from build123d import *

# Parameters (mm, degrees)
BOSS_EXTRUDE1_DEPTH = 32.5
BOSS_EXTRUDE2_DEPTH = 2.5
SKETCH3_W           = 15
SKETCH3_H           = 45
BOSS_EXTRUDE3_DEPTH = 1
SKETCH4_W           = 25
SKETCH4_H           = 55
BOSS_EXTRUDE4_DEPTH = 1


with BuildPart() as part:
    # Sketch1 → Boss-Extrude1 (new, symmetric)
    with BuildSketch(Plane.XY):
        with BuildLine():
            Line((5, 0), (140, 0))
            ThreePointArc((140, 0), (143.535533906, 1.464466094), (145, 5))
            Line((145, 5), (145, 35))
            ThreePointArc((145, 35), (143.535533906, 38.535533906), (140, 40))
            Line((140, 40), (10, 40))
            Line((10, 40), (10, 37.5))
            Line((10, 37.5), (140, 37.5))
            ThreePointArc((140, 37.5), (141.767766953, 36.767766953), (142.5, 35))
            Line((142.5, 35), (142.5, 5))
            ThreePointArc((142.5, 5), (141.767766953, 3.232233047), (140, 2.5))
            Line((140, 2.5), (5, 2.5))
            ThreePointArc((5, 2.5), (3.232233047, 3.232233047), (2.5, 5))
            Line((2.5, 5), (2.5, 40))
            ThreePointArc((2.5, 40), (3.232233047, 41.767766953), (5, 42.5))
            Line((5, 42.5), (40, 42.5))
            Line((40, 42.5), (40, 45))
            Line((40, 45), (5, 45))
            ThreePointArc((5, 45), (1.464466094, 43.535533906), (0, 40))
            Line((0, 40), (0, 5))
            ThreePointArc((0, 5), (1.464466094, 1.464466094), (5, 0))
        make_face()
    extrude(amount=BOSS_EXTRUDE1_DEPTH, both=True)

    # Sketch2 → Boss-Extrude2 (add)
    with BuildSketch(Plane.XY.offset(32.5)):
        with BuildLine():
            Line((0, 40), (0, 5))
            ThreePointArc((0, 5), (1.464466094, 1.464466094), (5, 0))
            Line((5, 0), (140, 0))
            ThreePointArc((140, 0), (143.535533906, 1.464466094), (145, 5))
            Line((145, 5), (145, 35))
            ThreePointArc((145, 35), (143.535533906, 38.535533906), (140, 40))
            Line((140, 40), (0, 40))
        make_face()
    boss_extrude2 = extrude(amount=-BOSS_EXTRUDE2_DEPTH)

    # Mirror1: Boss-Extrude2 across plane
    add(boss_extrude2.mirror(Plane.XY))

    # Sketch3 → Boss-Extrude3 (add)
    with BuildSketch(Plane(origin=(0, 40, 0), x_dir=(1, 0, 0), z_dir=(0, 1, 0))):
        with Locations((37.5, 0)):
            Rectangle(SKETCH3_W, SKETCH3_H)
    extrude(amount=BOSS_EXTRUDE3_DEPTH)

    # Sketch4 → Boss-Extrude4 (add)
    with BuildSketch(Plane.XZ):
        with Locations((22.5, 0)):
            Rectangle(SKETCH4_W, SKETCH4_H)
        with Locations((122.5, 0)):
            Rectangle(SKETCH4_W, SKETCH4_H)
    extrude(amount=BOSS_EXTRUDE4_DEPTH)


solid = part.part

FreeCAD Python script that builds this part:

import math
import FreeCAD as App
import Part
import Sketcher
Q = App.Units.Quantity


def add_polygon(sketch, points):
    """Adds a closed chain of lines whose ends are joined by coincident constraints."""
    first, n = sketch.GeometryCount, len(points)
    for a, b in zip(points, points[1:] + points[:1]):
        sketch.addGeometry(Part.LineSegment(App.Vector(*a, 0), App.Vector(*b, 0)), False)
    for i in range(n):
        sketch.addConstraint(Sketcher.Constraint("Coincident", first + i, 2, first + (i + 1) % n, 1))

doc = App.newDocument("Part")
body = doc.addObject("PartDesign::Body", "Body")

sketch1 = body.newObject("Sketcher::SketchObject", "Sketch")
sketch1.AttachmentSupport = (doc.getObject("XY_Plane"), [""])
sketch1.MapMode = "FlatFace"
sketch1.addGeometry(Part.LineSegment(App.Vector(5, 0, 0), App.Vector(140, 0, 0)), False)
sketch1.addGeometry(Part.ArcOfCircle(Part.Circle(App.Vector(140, 5, 0), App.Vector(0, 0, 1), 5), math.radians(-90), math.radians(0)), False)
sketch1.addGeometry(Part.LineSegment(App.Vector(145, 5, 0), App.Vector(145, 35, 0)), False)
sketch1.addGeometry(Part.ArcOfCircle(Part.Circle(App.Vector(140, 35, 0), App.Vector(0, 0, 1), 5), math.radians(0), math.radians(90)), False)
sketch1.addGeometry(Part.LineSegment(App.Vector(140, 40, 0), App.Vector(10, 40, 0)), False)
sketch1.addGeometry(Part.LineSegment(App.Vector(10, 40, 0), App.Vector(10, 37.5, 0)), False)
sketch1.addGeometry(Part.LineSegment(App.Vector(10, 37.5, 0), App.Vector(140, 37.5, 0)), False)
sketch1.addGeometry(Part.ArcOfCircle(Part.Circle(App.Vector(140, 35, 0), App.Vector(0, 0, 1), 2.5), math.radians(0), math.radians(90)), False)
sketch1.addGeometry(Part.LineSegment(App.Vector(142.5, 35, 0), App.Vector(142.5, 5, 0)), False)
sketch1.addGeometry(Part.ArcOfCircle(Part.Circle(App.Vector(140, 5, 0), App.Vector(0, 0, 1), 2.5), math.radians(-90), math.radians(0)), False)
sketch1.addGeometry(Part.LineSegment(App.Vector(140, 2.5, 0), App.Vector(5, 2.5, 0)), False)
sketch1.addGeometry(Part.ArcOfCircle(Part.Circle(App.Vector(5, 5, 0), App.Vector(0, 0, 1), 2.5), math.radians(180), math.radians(270)), False)
sketch1.addGeometry(Part.LineSegment(App.Vector(2.5, 5, 0), App.Vector(2.5, 40, 0)), False)
sketch1.addGeometry(Part.ArcOfCircle(Part.Circle(App.Vector(5, 40, 0), App.Vector(0, 0, 1), 2.5), math.radians(90), math.radians(180)), False)
sketch1.addGeometry(Part.LineSegment(App.Vector(5, 42.5, 0), App.Vector(40, 42.5, 0)), False)
sketch1.addGeometry(Part.LineSegment(App.Vector(40, 42.5, 0), App.Vector(40, 45, 0)), False)
sketch1.addGeometry(Part.LineSegment(App.Vector(40, 45, 0), App.Vector(5, 45, 0)), False)
sketch1.addGeometry(Part.ArcOfCircle(Part.Circle(App.Vector(5, 40, 0), App.Vector(0, 0, 1), 5), math.radians(90), math.radians(180)), False)
sketch1.addGeometry(Part.LineSegment(App.Vector(0, 40, 0), App.Vector(0, 5, 0)), False)
sketch1.addGeometry(Part.ArcOfCircle(Part.Circle(App.Vector(5, 5, 0), App.Vector(0, 0, 1), 5), math.radians(180), math.radians(270)), False)
sketch1.addConstraint(Sketcher.Constraint("Tangent", 0, 2, 1, 1))
sketch1.addConstraint(Sketcher.Constraint("Tangent", 1, 2, 2, 1))
sketch1.addConstraint(Sketcher.Constraint("Tangent", 2, 2, 3, 1))
sketch1.addConstraint(Sketcher.Constraint("Tangent", 3, 2, 4, 1))
sketch1.addConstraint(Sketcher.Constraint("Coincident", 4, 2, 5, 1))
sketch1.addConstraint(Sketcher.Constraint("Coincident", 5, 2, 6, 1))
sketch1.addConstraint(Sketcher.Constraint("Tangent", 6, 2, 7, 2))
sketch1.addConstraint(Sketcher.Constraint("Tangent", 7, 1, 8, 1))
sketch1.addConstraint(Sketcher.Constraint("Tangent", 8, 2, 9, 2))
sketch1.addConstraint(Sketcher.Constraint("Tangent", 9, 1, 10, 1))
sketch1.addConstraint(Sketcher.Constraint("Tangent", 10, 2, 11, 2))
sketch1.addConstraint(Sketcher.Constraint("Tangent", 11, 1, 12, 1))
sketch1.addConstraint(Sketcher.Constraint("Tangent", 12, 2, 13, 2))
sketch1.addConstraint(Sketcher.Constraint("Tangent", 13, 1, 14, 1))
sketch1.addConstraint(Sketcher.Constraint("Coincident", 14, 2, 15, 1))
sketch1.addConstraint(Sketcher.Constraint("Coincident", 15, 2, 16, 1))
sketch1.addConstraint(Sketcher.Constraint("Tangent", 16, 2, 17, 1))
sketch1.addConstraint(Sketcher.Constraint("Tangent", 17, 2, 18, 1))
sketch1.addConstraint(Sketcher.Constraint("Tangent", 18, 2, 19, 1))
sketch1.addConstraint(Sketcher.Constraint("Tangent", 19, 2, 0, 1))
sketch1.addConstraint(Sketcher.Constraint("Horizontal", 0))
sketch1.addConstraint(Sketcher.Constraint("Vertical", 2))
sketch1.addConstraint(Sketcher.Constraint("Horizontal", 4))
sketch1.addConstraint(Sketcher.Constraint("Vertical", 5))
sketch1.addConstraint(Sketcher.Constraint("Horizontal", 6))
sketch1.addConstraint(Sketcher.Constraint("Vertical", 8))
sketch1.addConstraint(Sketcher.Constraint("Horizontal", 10))
sketch1.addConstraint(Sketcher.Constraint("Vertical", 12))
sketch1.addConstraint(Sketcher.Constraint("Horizontal", 14))
sketch1.addConstraint(Sketcher.Constraint("Vertical", 15))
sketch1.addConstraint(Sketcher.Constraint("Horizontal", 16))
sketch1.addConstraint(Sketcher.Constraint("Vertical", 18))
sketch1.addConstraint(Sketcher.Constraint("Coincident", 7, 3, 3, 3))
sketch1.addConstraint(Sketcher.Constraint("Coincident", 9, 3, 1, 3))
sketch1.addConstraint(Sketcher.Constraint("Coincident", 17, 3, 13, 3))
sketch1.addConstraint(Sketcher.Constraint("Coincident", 19, 3, 11, 3))
sketch1.addConstraint(Sketcher.Constraint("Equal", 1, 3))
sketch1.addConstraint(Sketcher.Constraint("Equal", 9, 11))
sketch1.addConstraint(Sketcher.Constraint("Equal", 11, 13))
sketch1.addConstraint(Sketcher.Constraint("PointOnObject", 0, 2, -1))
sketch1.addConstraint(Sketcher.Constraint("PointOnObject", 17, 2, -2))
sketch1.addConstraint(Sketcher.Constraint("Horizontal", 17, 3, 3, 2))
sketch1.addConstraint(Sketcher.Constraint("Equal", 16, 12))
sketch1.addConstraint(Sketcher.Constraint("Radius", 1, Q("5 mm")))
sketch1.addConstraint(Sketcher.Constraint("Radius", 7, Q("2.5 mm")))
sketch1.addConstraint(Sketcher.Constraint("DistanceX", 0, 1, 0, 2, Q("135 mm")))
sketch1.addConstraint(Sketcher.Constraint("DistanceX", 4, 2, 4, 1, Q("130 mm")))
sketch1.addConstraint(Sketcher.Constraint("DistanceX", 14, 1, 14, 2, Q("35 mm")))
pad1 = body.newObject("PartDesign::Pad", "Pad")
pad1.Profile = sketch1
pad1.Length = 65
pad1.Midplane = True

sketch2 = body.newObject("Sketcher::SketchObject", "Sketch001")
sketch2.AttachmentSupport = (doc.getObject("XY_Plane"), [""])
sketch2.MapMode = "FlatFace"
sketch2.AttachmentOffset = App.Placement(App.Vector(0, 0, 32.5), App.Rotation())
sketch2.addGeometry(Part.LineSegment(App.Vector(0, 40, 0), App.Vector(0, 5, 0)), False)
sketch2.addGeometry(Part.ArcOfCircle(Part.Circle(App.Vector(5, 5, 0), App.Vector(0, 0, 1), 5), math.radians(180), math.radians(270)), False)
sketch2.addGeometry(Part.LineSegment(App.Vector(5, 0, 0), App.Vector(140, 0, 0)), False)
sketch2.addGeometry(Part.ArcOfCircle(Part.Circle(App.Vector(140, 5, 0), App.Vector(0, 0, 1), 5), math.radians(-90), math.radians(0)), False)
sketch2.addGeometry(Part.LineSegment(App.Vector(145, 5, 0), App.Vector(145, 35, 0)), False)
sketch2.addGeometry(Part.ArcOfCircle(Part.Circle(App.Vector(140, 35, 0), App.Vector(0, 0, 1), 5), math.radians(0), math.radians(90)), False)
sketch2.addGeometry(Part.LineSegment(App.Vector(140, 40, 0), App.Vector(0, 40, 0)), False)
sketch2.addConstraint(Sketcher.Constraint("Tangent", 0, 2, 1, 1))
sketch2.addConstraint(Sketcher.Constraint("Tangent", 1, 2, 2, 1))
sketch2.addConstraint(Sketcher.Constraint("Tangent", 2, 2, 3, 1))
sketch2.addConstraint(Sketcher.Constraint("Tangent", 3, 2, 4, 1))
sketch2.addConstraint(Sketcher.Constraint("Tangent", 4, 2, 5, 1))
sketch2.addConstraint(Sketcher.Constraint("Tangent", 5, 2, 6, 1))
sketch2.addConstraint(Sketcher.Constraint("Coincident", 6, 2, 0, 1))
sketch2.addConstraint(Sketcher.Constraint("Vertical", 0))
sketch2.addConstraint(Sketcher.Constraint("Horizontal", 2))
sketch2.addConstraint(Sketcher.Constraint("Vertical", 4))
sketch2.addConstraint(Sketcher.Constraint("Horizontal", 6))
sketch2.addConstraint(Sketcher.Constraint("Equal", 1, 3))
sketch2.addConstraint(Sketcher.Constraint("Equal", 3, 5))
sketch2.addConstraint(Sketcher.Constraint("PointOnObject", 0, 2, -2))
sketch2.addConstraint(Sketcher.Constraint("PointOnObject", 1, 2, -1))
sketch2.addConstraint(Sketcher.Constraint("Radius", 1, Q("5 mm")))
sketch2.addConstraint(Sketcher.Constraint("DistanceX", 2, 1, 2, 2, Q("135 mm")))
sketch2.addConstraint(Sketcher.Constraint("DistanceY", 0, 2, 0, 1, Q("35 mm")))
pad2 = body.newObject("PartDesign::Pad", "Pad001")
pad2.Profile = sketch2
pad2.Length = 2.5
pad2.Reversed = True
doc.recompute()

mirrored = body.newObject("PartDesign::Mirrored", "Mirrored")
mirrored.Originals = [pad2]
mirrored.MirrorPlane = (doc.getObject("XY_Plane"), [""])
body.Tip = mirrored

sketch3 = body.newObject("Sketcher::SketchObject", "Sketch002")
sketch3.AttachmentSupport = (doc.getObject("XZ_Plane"), [""])
sketch3.MapMode = "FlatFace"
sketch3.AttachmentOffset = App.Placement(App.Vector(0, 0, -40), App.Rotation())
add_polygon(sketch3, [(30, -22), (30, 22), (45, 22), (45, -22)])
sketch3.addConstraint(Sketcher.Constraint("Vertical", 0))
sketch3.addConstraint(Sketcher.Constraint("Horizontal", 1))
sketch3.addConstraint(Sketcher.Constraint("Vertical", 2))
sketch3.addConstraint(Sketcher.Constraint("Horizontal", 3))
sketch3.addConstraint(Sketcher.Constraint("DistanceX", 1, 1, 1, 2, Q("15 mm")))
sketch3.addConstraint(Sketcher.Constraint("DistanceY", 0, 1, 0, 2, Q("45 mm")))
sketch3.addConstraint(Sketcher.Constraint("DistanceX", -1, 1, 0, 2, Q("30 mm")))
sketch3.addConstraint(Sketcher.Constraint("DistanceY", -1, 1, 0, 2, Q("22.5 mm")))
pad3 = body.newObject("PartDesign::Pad", "Pad002")
pad3.Profile = sketch3
pad3.Length = 1
pad3.Reversed = True

sketch4 = body.newObject("Sketcher::SketchObject", "Sketch003")
sketch4.AttachmentSupport = (doc.getObject("XZ_Plane"), [""])
sketch4.MapMode = "FlatFace"
add_polygon(sketch4, [(10, 28), (10, -28), (35, -28), (35, 28)])
add_polygon(sketch4, [(110, 28), (110, -28), (135, -28), (135, 28)])
sketch4.addConstraint(Sketcher.Constraint("Vertical", 0))
sketch4.addConstraint(Sketcher.Constraint("Horizontal", 1))
sketch4.addConstraint(Sketcher.Constraint("Vertical", 2))
sketch4.addConstraint(Sketcher.Constraint("Horizontal", 3))
sketch4.addConstraint(Sketcher.Constraint("Vertical", 4))
sketch4.addConstraint(Sketcher.Constraint("Horizontal", 5))
sketch4.addConstraint(Sketcher.Constraint("Vertical", 6))
sketch4.addConstraint(Sketcher.Constraint("Horizontal", 7))
sketch4.addConstraint(Sketcher.Constraint("Horizontal", 1, 2, 4, 2))
sketch4.addConstraint(Sketcher.Constraint("Horizontal", 3, 2, 6, 2))
sketch4.addConstraint(Sketcher.Constraint("Equal", 3, 5))
sketch4.addConstraint(Sketcher.Constraint("DistanceX", 1, 1, 1, 2, Q("25 mm")))
sketch4.addConstraint(Sketcher.Constraint("DistanceY", 0, 2, 0, 1, Q("55 mm")))
sketch4.addConstraint(Sketcher.Constraint("DistanceX", -1, 1, 0, 2, Q("10 mm")))
sketch4.addConstraint(Sketcher.Constraint("DistanceX", -1, 1, 4, 2, Q("110 mm")))
sketch4.addConstraint(Sketcher.Constraint("DistanceY", 0, 2, -1, 1, Q("27.5 mm")))
pad4 = body.newObject("PartDesign::Pad", "Pad003")
pad4.Profile = sketch4
pad4.Length = 1

doc.recompute()
